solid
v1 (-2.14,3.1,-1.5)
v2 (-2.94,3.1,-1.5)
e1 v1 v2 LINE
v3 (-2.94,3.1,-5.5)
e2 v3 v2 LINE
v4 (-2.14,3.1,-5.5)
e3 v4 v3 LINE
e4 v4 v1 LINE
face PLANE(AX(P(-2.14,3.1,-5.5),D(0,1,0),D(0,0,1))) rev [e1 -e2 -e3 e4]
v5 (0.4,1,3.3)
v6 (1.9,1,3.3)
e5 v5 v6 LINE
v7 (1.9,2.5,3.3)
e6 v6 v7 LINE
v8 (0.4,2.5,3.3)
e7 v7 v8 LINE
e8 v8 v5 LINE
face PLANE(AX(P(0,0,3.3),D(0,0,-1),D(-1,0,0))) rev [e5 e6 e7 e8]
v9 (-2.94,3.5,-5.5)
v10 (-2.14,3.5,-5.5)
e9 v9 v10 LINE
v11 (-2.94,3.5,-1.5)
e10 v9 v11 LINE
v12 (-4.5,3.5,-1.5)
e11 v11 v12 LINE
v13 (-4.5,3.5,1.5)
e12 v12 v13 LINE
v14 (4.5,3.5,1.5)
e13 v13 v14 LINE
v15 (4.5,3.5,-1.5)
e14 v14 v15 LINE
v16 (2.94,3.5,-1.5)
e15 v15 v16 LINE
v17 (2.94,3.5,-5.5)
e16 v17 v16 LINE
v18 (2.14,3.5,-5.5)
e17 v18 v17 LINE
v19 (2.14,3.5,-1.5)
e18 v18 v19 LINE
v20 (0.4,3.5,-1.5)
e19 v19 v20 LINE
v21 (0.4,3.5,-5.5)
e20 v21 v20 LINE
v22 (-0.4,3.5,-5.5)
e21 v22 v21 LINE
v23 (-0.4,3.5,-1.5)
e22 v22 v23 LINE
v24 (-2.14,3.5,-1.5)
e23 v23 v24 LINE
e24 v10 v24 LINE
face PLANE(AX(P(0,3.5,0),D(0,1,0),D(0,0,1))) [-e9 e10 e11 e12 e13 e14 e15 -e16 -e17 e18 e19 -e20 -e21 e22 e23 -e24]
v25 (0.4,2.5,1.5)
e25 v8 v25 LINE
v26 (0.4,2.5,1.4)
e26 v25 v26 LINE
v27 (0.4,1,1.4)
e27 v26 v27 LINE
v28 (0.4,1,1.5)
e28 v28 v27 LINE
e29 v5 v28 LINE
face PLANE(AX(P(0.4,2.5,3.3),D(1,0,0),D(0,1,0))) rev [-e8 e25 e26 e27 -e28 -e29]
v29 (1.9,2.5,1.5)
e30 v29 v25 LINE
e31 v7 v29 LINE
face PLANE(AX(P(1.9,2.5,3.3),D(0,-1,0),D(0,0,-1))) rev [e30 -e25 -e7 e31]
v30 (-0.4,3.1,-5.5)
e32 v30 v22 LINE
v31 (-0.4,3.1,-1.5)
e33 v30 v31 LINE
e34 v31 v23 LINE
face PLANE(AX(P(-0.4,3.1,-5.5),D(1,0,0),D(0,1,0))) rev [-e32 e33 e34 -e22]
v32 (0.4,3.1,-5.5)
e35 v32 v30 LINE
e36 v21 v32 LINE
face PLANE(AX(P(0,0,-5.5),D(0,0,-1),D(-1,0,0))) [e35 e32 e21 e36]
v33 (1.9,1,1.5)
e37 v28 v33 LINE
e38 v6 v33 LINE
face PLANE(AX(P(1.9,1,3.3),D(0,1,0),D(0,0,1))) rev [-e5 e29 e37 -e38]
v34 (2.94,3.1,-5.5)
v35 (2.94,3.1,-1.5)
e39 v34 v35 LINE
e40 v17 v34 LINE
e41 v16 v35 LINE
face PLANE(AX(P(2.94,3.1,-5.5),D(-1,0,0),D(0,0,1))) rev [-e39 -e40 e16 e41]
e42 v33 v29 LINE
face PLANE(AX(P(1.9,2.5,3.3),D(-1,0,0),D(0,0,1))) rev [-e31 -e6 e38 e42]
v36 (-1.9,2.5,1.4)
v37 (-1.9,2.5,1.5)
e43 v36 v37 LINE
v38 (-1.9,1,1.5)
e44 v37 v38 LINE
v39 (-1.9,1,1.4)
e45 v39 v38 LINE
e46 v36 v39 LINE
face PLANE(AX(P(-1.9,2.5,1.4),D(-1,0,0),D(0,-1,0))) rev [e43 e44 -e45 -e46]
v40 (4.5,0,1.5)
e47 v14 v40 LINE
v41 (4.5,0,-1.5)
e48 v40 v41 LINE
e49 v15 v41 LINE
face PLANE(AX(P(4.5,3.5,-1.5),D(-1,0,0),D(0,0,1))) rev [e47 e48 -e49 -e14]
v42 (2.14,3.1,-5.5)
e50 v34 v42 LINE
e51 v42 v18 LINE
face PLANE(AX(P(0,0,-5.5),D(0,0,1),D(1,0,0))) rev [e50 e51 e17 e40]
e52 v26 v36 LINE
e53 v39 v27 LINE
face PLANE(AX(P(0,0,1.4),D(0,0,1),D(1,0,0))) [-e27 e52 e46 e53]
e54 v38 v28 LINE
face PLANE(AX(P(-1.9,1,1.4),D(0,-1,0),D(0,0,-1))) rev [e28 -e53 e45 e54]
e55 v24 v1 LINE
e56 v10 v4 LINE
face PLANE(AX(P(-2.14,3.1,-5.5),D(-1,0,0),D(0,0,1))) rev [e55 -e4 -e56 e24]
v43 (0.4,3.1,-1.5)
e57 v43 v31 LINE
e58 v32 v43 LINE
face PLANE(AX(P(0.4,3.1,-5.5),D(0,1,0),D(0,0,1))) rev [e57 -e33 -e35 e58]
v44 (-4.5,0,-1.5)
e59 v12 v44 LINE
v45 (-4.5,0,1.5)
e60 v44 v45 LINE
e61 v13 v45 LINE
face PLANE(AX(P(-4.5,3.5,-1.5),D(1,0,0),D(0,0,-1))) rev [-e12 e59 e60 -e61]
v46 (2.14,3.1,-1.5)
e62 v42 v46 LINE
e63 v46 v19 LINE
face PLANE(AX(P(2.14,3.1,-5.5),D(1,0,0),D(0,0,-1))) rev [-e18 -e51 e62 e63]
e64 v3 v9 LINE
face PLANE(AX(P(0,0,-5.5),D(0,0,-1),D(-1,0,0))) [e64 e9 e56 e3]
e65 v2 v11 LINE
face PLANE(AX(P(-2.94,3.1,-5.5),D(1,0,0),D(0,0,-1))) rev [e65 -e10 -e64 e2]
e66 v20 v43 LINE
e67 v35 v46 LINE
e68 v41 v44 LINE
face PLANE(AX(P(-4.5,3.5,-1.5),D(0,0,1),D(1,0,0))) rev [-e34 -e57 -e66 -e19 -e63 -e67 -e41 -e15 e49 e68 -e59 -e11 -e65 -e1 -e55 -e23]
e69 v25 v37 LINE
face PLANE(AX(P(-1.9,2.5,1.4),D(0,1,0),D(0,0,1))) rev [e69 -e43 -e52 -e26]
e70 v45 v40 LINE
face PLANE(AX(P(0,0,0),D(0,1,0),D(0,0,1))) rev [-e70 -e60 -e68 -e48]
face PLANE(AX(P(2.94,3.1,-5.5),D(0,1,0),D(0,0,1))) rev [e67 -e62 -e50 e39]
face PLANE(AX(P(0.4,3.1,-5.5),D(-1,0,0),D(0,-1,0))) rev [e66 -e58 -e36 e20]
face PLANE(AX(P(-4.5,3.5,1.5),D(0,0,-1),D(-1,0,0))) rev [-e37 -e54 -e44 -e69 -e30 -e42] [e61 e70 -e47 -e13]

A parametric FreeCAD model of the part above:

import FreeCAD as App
import Part
import Sketcher

V = App.Vector
Q = App.Units.Quantity

doc = App.newDocument("Part")
body = doc.addObject("PartDesign::Body", "Body")

sketch1 = body.newObject("Sketcher::SketchObject", "Sketch")
sketch1.AttachmentSupport = (doc.getObject("XZ_Plane"), [""])
sketch1.MapMode = "FlatFace"
sketch1.addGeometry([
    Part.LineSegment(V(-4.5, -1.5, 0), V(-4.5, 1.5, 0)),
    Part.LineSegment(V(-4.5, 1.5, 0), V(4.5, 1.5, 0)),
    Part.LineSegment(V(4.5, 1.5, 0), V(4.5, -1.5, 0)),
    Part.LineSegment(V(4.5, -1.5, 0), V(-4.5, -1.5, 0)),
], False)
sketch1.addConstraint([
    Sketcher.Constraint("Coincident", 0, 2, 1, 1),
    Sketcher.Constraint("Coincident", 1, 2, 2, 1),
    Sketcher.Constraint("Coincident", 2, 2, 3, 1),
    Sketcher.Constraint("Coincident", 3, 2, 0, 1),
    Sketcher.Constraint("Vertical", 0),
    Sketcher.Constraint("Horizontal", 1),
    Sketcher.Constraint("Vertical", 2),
    Sketcher.Constraint("Horizontal", 3),
    Sketcher.Constraint("Symmetric", 0, 2, 2, 2, -1, 1),
    Sketcher.Constraint("DistanceX", 1, 1, 1, 2, Q("9 mm")),
    Sketcher.Constraint("DistanceY", 0, 1, 0, 2, Q("3 mm")),
])
pad1 = body.newObject("PartDesign::Pad", "Pad")
pad1.Profile = sketch1
pad1.Length = 3.5
pad1.Reversed = True

sketch2 = body.newObject("Sketcher::SketchObject", "Sketch001")
sketch2.AttachmentSupport = (doc.getObject("XY_Plane"), [""])
sketch2.MapMode = "FlatFace"
sketch2.AttachmentOffset = App.Placement(V(0, 0, 1.5), App.Rotation())
sketch2.addGeometry([
    Part.LineSegment(V(-1.9, 2.5, 0), V(-1.9, 1, 0)),
    Part.LineSegment(V(-1.9, 1, 0), V(1.9, 1, 0)),
    Part.LineSegment(V(1.9, 1, 0), V(1.9, 2.5, 0)),
    Part.LineSegment(V(1.9, 2.5, 0), V(-1.9, 2.5, 0)),
], False)
sketch2.addConstraint([
    Sketcher.Constraint("Coincident", 0, 2, 1, 1),
    Sketcher.Constraint("Coincident", 1, 2, 2, 1),
    Sketcher.Constraint("Coincident", 2, 2, 3, 1),
    Sketcher.Constraint("Coincident", 3, 2, 0, 1),
    Sketcher.Constraint("Vertical", 0),
    Sketcher.Constraint("Horizontal", 1),
    Sketcher.Constraint("Vertical", 2),
    Sketcher.Constraint("Horizontal", 3),
    Sketcher.Constraint("DistanceX", 1, 1, 1, 2, Q("3.8 mm")),
    Sketcher.Constraint("DistanceY", 0, 2, 0, 1, Q("1.5 mm")),
    Sketcher.Constraint("DistanceY", -1, 1, 0, 2, Q("1 mm")),
    Sketcher.Constraint("DistanceX", 0, 2, -1, 1, Q("1.9 mm")),
])
pocket1 = body.newObject("PartDesign::Pocket", "Pocket")
pocket1.Profile = sketch2
pocket1.Length = 0.1

sketch3 = body.newObject("Sketcher::SketchObject", "Sketch002")
sketch3.AttachmentSupport = (doc.getObject("XY_Plane"), [""])
sketch3.MapMode = "FlatFace"
sketch3.AttachmentOffset = App.Placement(V(0, 0, 1.4), App.Rotation())
sketch3.addGeometry([
    Part.LineSegment(V(0.4, 2.5, 0), V(0.4, 1, 0)),
    Part.LineSegment(V(0.4, 1, 0), V(1.9, 1, 0)),
    Part.LineSegment(V(1.9, 1, 0), V(1.9, 2.5, 0)),
    Part.LineSegment(V(1.9, 2.5, 0), V(0.4, 2.5, 0)),
], False)
sketch3.addConstraint([
    Sketcher.Constraint("Coincident", 0, 2, 1, 1),
    Sketcher.Constraint("Coincident", 1, 2, 2, 1),
    Sketcher.Constraint("Coincident", 2, 2, 3, 1),
    Sketcher.Constraint("Coincident", 3, 2, 0, 1),
    Sketcher.Constraint("Vertical", 0),
    Sketcher.Constraint("Horizontal", 1),
    Sketcher.Constraint("Vertical", 2),
    Sketcher.Constraint("Horizontal", 3),
    Sketcher.Constraint("Equal", 3, 0),
    Sketcher.Constraint("DistanceX", 1, 1, 1, 2, Q("1.5 mm")),
    Sketcher.Constraint("DistanceY", -1, 1, 0, 2, Q("1 mm")),
    Sketcher.Constraint("DistanceX", -1, 1, 0, 2, Q("0.4 mm")),
])
pad2 = body.newObject("PartDesign::Pad", "Pad001")
pad2.Profile = sketch3
pad2.Length = 1.9

sketch4 = body.newObject("Sketcher::SketchObject", "Sketch003")
sketch4.AttachmentSupport = (doc.getObject("XY_Plane"), [""])
sketch4.MapMode = "FlatFace"
sketch4.AttachmentOffset = App.Placement(V(0, 0, -1.5), App.Rotation())
sketch4.addGeometry([
    Part.LineSegment(V(2.94, 3.5, 0), V(2.94, 3.1, 0)),
    Part.LineSegment(V(2.94, 3.1, 0), V(2.14, 3.1, 0)),
    Part.LineSegment(V(2.14, 3.1, 0), V(2.14, 3.5, 0)),
    Part.LineSegment(V(2.14, 3.5, 0), V(2.94, 3.5, 0)),
    Part.LineSegment(V(0.4, 3.5, 0), V(0.4, 3.1, 0)),
    Part.LineSegment(V(0.4, 3.1, 0), V(-0.4, 3.1, 0)),
    Part.LineSegment(V(-0.4, 3.1, 0), V(-0.4, 3.5, 0)),
    Part.LineSegment(V(-0.4, 3.5, 0), V(0.4, 3.5, 0)),
    Part.LineSegment(V(-2.14, 3.5, 0), V(-2.14, 3.1, 0)),
    Part.LineSegment(V(-2.14, 3.1, 0), V(-2.94, 3.1, 0)),
    Part.LineSegment(V(-2.94, 3.1, 0), V(-2.94, 3.5, 0)),
    Part.LineSegment(V(-2.94, 3.5, 0), V(-2.14, 3.5, 0)),
], False)
sketch4.addConstraint([
    Sketcher.Constraint("Coincident", 0, 2, 1, 1),
    Sketcher.Constraint("Coincident", 1, 2, 2, 1),
    Sketcher.Constraint("Coincident", 2, 2, 3, 1),
    Sketcher.Constraint("Coincident", 3, 2, 0, 1),
    Sketcher.Constraint("Coincident", 4, 2, 5, 1),
    Sketcher.Constraint("Coincident", 5, 2, 6, 1),
    Sketcher.Constraint("Coincident", 6, 2, 7, 1),
    Sketcher.Constraint("Coincident", 7, 2, 4, 1),
    Sketcher.Constraint("Coincident", 8, 2, 9, 1),
    Sketcher.Constraint("Coincident", 9, 2, 10, 1),
    Sketcher.Constraint("Coincident", 10, 2, 11, 1),
    Sketcher.Constraint("Coincident", 11, 2, 8, 1),
    Sketcher.Constraint("Vertical", 0),
    Sketcher.Constraint("Horizontal", 1),
    Sketcher.Constraint("Vertical", 2),
    Sketcher.Constraint("Horizontal", 3),
    Sketcher.Constraint("Vertical", 4),
    Sketcher.Constraint("Horizontal", 5),
    Sketcher.Constraint("Vertical", 6),
    Sketcher.Constraint("Horizontal", 7),
    Sketcher.Constraint("Vertical", 8),
    Sketcher.Constraint("Horizontal", 9),
    Sketcher.Constraint("Vertical", 10),
    Sketcher.Constraint("Horizontal", 11),
    Sketcher.Constraint("Symmetric", 1, 2, 8, 2, -2),
    Sketcher.Constraint("Symmetric", 3, 2, 10, 2, -2),
    Sketcher.Constraint("Horizontal", 1, 2, 4, 2),
    Sketcher.Constraint("Horizontal", 3, 2, 6, 2),
    Sketcher.Constraint("Equal", 3, 5),
    Sketcher.Constraint("DistanceX", 1, 2, 1, 1, Q("0.8 mm")),
    Sketcher.Constraint("DistanceY", 0, 2, 0, 1, Q("0.4 mm")),
    Sketcher.Constraint("DistanceY", -1, 1, 0, 2, Q("3.1 mm")),
    Sketcher.Constraint("DistanceX", -1, 1, 4, 2, Q("0.4 mm")),
    Sketcher.Constraint("DistanceX", -1, 1, 0, 2, Q("2.94 mm")),
])
pad3 = body.newObject("PartDesign::Pad", "Pad002")
pad3.Profile = sketch4
pad3.Length = 4
pad3.Reversed = True

doc.recompute()
